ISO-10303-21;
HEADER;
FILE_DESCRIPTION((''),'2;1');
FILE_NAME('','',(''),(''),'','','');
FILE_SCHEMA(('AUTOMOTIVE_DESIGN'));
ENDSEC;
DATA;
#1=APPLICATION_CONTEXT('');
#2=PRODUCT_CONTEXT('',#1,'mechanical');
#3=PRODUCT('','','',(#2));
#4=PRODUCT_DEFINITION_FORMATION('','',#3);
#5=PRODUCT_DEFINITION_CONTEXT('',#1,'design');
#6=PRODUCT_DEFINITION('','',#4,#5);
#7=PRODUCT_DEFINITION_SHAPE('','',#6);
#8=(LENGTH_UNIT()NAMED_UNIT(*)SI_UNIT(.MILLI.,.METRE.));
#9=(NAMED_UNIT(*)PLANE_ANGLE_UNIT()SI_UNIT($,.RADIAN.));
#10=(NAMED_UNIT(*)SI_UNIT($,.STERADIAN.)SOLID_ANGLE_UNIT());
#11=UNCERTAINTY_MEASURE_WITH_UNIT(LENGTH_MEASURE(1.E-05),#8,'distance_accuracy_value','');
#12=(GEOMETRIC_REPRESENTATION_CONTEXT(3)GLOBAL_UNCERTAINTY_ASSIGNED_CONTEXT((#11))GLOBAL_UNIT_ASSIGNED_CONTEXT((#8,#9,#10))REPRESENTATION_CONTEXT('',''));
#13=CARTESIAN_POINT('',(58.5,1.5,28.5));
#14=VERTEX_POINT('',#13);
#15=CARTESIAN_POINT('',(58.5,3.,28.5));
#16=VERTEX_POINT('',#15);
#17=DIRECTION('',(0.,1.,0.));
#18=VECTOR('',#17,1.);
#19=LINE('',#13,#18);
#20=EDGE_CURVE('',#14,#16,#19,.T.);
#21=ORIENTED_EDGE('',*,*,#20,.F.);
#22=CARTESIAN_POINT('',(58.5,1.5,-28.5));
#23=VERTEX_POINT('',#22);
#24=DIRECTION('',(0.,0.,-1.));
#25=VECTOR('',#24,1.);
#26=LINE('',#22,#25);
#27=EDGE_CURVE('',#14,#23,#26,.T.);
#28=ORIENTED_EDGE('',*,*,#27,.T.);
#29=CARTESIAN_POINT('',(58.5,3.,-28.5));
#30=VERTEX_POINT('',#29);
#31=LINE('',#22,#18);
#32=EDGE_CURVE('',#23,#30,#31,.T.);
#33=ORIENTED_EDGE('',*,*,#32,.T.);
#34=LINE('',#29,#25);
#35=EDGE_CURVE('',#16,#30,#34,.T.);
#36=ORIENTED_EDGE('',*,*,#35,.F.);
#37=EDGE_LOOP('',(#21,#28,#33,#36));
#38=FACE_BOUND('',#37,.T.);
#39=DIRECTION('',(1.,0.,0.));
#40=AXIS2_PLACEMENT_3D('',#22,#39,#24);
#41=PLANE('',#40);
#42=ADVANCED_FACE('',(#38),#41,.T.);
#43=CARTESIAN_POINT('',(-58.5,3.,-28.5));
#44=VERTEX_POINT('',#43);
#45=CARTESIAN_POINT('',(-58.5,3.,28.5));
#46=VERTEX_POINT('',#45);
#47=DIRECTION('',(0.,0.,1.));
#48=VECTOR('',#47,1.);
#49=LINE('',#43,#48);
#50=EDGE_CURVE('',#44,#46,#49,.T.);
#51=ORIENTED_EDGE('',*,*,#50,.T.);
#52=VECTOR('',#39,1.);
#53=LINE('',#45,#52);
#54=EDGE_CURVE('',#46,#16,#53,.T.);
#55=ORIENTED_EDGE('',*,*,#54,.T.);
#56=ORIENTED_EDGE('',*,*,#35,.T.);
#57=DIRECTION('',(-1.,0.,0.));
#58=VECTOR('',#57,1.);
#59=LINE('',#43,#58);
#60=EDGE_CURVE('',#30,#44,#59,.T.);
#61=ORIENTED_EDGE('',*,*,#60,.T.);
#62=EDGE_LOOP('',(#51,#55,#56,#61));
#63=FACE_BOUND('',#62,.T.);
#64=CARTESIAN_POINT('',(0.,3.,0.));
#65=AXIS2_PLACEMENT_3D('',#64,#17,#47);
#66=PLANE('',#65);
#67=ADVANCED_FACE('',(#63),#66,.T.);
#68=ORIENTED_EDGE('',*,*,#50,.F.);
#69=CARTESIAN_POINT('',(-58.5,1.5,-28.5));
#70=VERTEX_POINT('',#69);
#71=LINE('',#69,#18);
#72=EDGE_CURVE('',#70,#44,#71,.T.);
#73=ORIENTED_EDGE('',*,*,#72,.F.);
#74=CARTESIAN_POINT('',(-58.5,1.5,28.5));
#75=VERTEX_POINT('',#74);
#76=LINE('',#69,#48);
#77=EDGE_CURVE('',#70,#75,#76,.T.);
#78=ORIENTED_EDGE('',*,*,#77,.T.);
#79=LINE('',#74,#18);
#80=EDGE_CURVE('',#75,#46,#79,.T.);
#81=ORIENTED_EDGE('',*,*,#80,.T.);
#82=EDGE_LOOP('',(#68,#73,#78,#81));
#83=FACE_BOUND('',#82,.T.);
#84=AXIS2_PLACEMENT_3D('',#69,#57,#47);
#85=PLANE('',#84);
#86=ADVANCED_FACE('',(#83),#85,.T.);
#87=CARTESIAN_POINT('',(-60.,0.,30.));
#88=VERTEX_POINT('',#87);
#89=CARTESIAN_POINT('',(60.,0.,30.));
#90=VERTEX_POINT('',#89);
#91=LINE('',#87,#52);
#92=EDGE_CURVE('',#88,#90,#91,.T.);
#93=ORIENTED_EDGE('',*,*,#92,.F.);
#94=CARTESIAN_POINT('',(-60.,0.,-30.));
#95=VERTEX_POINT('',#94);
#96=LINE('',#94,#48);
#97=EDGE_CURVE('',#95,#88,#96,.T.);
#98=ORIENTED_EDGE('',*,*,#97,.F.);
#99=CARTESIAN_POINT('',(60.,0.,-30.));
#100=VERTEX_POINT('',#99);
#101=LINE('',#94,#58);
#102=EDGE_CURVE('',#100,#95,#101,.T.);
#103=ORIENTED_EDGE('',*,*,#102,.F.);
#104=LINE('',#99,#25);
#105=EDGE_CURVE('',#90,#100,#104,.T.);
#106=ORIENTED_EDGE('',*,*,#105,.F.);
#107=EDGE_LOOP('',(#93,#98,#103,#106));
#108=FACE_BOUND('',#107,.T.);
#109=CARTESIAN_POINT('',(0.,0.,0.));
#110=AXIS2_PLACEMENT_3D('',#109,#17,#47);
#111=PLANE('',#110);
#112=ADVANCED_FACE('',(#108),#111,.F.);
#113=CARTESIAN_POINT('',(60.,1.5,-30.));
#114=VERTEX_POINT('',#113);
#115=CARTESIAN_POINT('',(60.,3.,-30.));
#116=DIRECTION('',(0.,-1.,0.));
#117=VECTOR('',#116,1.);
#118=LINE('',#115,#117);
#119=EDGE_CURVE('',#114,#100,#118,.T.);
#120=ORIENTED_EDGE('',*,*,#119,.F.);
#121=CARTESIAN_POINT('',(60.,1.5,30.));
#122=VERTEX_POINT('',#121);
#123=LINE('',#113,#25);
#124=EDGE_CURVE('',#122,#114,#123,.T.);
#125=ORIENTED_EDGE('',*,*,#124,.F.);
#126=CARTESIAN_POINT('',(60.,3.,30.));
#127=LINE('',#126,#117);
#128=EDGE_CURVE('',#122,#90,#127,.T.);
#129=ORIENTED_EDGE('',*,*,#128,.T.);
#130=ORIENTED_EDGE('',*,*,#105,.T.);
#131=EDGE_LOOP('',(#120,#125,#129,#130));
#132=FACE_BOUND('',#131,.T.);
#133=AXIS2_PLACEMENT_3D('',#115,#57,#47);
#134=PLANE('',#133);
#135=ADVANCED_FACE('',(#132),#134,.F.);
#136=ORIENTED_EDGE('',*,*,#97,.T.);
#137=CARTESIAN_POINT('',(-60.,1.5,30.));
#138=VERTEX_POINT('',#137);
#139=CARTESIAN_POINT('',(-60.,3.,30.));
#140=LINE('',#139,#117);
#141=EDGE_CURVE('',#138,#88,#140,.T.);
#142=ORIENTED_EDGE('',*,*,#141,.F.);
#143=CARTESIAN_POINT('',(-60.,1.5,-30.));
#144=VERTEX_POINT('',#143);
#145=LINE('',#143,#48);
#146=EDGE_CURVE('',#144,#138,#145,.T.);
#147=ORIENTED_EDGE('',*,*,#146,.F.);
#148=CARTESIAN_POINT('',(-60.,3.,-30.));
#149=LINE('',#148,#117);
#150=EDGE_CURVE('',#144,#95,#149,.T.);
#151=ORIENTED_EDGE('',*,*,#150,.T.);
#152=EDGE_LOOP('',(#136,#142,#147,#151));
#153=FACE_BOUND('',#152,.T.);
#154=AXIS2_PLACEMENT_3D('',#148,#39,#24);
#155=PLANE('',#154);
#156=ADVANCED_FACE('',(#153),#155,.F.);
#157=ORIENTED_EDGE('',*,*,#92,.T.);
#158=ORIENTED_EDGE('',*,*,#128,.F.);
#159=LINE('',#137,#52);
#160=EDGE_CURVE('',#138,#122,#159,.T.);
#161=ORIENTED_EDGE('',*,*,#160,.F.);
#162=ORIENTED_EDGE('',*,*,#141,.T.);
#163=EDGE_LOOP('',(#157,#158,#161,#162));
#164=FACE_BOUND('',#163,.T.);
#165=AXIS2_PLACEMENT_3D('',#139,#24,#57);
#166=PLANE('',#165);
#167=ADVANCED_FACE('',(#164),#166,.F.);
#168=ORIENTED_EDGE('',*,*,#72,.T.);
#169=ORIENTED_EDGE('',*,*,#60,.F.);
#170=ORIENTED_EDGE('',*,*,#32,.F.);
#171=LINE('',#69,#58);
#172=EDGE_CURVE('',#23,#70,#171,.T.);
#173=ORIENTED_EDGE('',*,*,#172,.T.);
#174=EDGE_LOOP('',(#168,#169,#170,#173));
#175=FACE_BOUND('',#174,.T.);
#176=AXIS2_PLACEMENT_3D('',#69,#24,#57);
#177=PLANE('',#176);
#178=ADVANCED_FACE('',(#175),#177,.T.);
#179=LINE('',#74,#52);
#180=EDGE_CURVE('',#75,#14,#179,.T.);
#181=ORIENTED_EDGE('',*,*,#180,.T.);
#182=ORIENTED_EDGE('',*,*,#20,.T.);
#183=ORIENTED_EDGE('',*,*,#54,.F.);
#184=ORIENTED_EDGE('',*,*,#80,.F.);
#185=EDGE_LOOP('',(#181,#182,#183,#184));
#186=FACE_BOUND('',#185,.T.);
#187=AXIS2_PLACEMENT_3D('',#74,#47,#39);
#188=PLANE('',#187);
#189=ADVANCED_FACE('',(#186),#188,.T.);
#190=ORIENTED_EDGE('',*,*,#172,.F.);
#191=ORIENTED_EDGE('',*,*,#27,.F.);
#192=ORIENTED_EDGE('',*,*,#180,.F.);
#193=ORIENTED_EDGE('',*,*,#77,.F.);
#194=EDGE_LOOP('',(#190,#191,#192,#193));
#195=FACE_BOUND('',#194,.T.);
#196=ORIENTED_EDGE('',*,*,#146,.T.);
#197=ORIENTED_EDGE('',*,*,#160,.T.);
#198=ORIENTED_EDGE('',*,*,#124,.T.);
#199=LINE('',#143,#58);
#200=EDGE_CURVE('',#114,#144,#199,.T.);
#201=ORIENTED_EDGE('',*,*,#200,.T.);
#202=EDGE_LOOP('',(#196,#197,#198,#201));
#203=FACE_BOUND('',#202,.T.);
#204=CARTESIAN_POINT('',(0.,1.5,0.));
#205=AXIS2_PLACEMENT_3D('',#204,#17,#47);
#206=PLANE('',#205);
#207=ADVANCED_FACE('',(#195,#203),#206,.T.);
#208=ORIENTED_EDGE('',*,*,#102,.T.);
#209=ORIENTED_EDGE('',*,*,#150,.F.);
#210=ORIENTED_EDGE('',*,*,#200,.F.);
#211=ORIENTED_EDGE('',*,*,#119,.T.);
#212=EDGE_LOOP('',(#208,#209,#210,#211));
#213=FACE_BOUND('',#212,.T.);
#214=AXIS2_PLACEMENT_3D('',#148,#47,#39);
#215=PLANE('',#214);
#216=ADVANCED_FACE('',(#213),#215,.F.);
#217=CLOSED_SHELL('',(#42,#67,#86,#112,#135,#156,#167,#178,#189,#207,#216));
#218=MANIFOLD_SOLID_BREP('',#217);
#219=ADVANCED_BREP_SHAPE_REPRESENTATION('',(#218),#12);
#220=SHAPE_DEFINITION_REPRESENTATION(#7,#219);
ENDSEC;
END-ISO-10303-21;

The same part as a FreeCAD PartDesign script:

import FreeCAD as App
import Part
import Sketcher
from FreeCAD import Vector

doc = App.newDocument("Part")
body = doc.addObject("PartDesign::Body", "Body")

# Sketch on XZ plane
sketch1 = body.newObject("Sketcher::SketchObject", "Sketch")
sketch1.AttachmentSupport = (doc.getObject("XZ_Plane"), [""])
sketch1.MapMode = "FlatFace"
sketch1.addGeometry([
    Part.LineSegment(Vector(-60, -30, 0), Vector(-60, 30, 0)),
    Part.LineSegment(Vector(-60, 30, 0), Vector(60, 30, 0)),
    Part.LineSegment(Vector(60, 30, 0), Vector(60, -30, 0)),
    Part.LineSegment(Vector(60, -30, 0), Vector(-60, -30, 0)),
], False)
sketch1.addConstraint([
    Sketcher.Constraint("Coincident", 0, 2, 1, 1),
    Sketcher.Constraint("Coincident", 1, 2, 2, 1),
    Sketcher.Constraint("Coincident", 2, 2, 3, 1),
    Sketcher.Constraint("Coincident", 3, 2, 0, 1),
    Sketcher.Constraint("Vertical", 0),
    Sketcher.Constraint("Horizontal", 1),
    Sketcher.Constraint("Vertical", 2),
    Sketcher.Constraint("Horizontal", 3),
    Sketcher.Constraint("Symmetric", 0, 2, 2, 2, -1, 1),
    Sketcher.Constraint("DistanceX", 1, 1, 1, 2, 120.0),
    Sketcher.Constraint("DistanceY", 0, 1, 0, 2, 60.0),
])
pad1 = body.newObject("PartDesign::Pad", "Pad")
pad1.Profile = sketch1
pad1.Length = 3
pad1.Reversed = True

# Sketch on XZ plane
sketch2 = body.newObject("Sketcher::SketchObject", "Sketch001")
sketch2.AttachmentSupport = (doc.getObject("XZ_Plane"), [""])
sketch2.MapMode = "FlatFace"
sketch2.AttachmentOffset = App.Placement(Vector(0, 0, -3), App.Rotation())
sketch2.addGeometry([
    Part.LineSegment(Vector(-74, -44, 0), Vector(-74, 44, 0)),  # 0
    Part.LineSegment(Vector(-74, 44, 0), Vector(74, 44, 0)),  # 1
    Part.LineSegment(Vector(74, 44, 0), Vector(74, -44, 0)),  # 2
    Part.LineSegment(Vector(74, -44, 0), Vector(-74, -44, 0)),  # 3
    Part.LineSegment(Vector(58, 28, 0), Vector(-58, 28, 0)),  # 4
    Part.LineSegment(Vector(-58, 28, 0), Vector(-58, -28, 0)),  # 5
    Part.LineSegment(Vector(-58, -28, 0), Vector(58, -28, 0)),  # 6
    Part.LineSegment(Vector(58, -28, 0), Vector(58, 28, 0)),  # 7
], False)
sketch2.addConstraint([
    Sketcher.Constraint("Coincident", 0, 2, 1, 1),
    Sketcher.Constraint("Coincident", 1, 2, 2, 1),
    Sketcher.Constraint("Coincident", 2, 2, 3, 1),
    Sketcher.Constraint("Coincident", 3, 2, 0, 1),
    Sketcher.Constraint("Coincident", 4, 2, 5, 1),
    Sketcher.Constraint("Coincident", 5, 2, 6, 1),
    Sketcher.Constraint("Coincident", 6, 2, 7, 1),
    Sketcher.Constraint("Coincident", 7, 2, 4, 1),
    Sketcher.Constraint("Vertical", 0),
    Sketcher.Constraint("Horizontal", 1),
    Sketcher.Constraint("Vertical", 2),
    Sketcher.Constraint("Horizontal", 3),
    Sketcher.Constraint("Horizontal", 4),
    Sketcher.Constraint("Vertical", 5),
    Sketcher.Constraint("Horizontal", 6),
    Sketcher.Constraint("Vertical", 7),
    Sketcher.Constraint("Symmetric", 0, 2, 2, 2, -1, 1),
    Sketcher.Constraint("Symmetric", 4, 2, 6, 2, -1, 1),
    Sketcher.Constraint("DistanceX", 4, 2, 4, 1, 117.0),
    Sketcher.Constraint("DistanceY", 5, 2, 5, 1, 57.0),
    Sketcher.Constraint("DistanceX", 1, 1, 1, 2, 148.84),
    Sketcher.Constraint("DistanceY", 0, 1, 0, 2, 88.84),
])
pocket1 = body.newObject("PartDesign::Pocket", "Pocket")
pocket1.Profile = sketch2
pocket1.Length = 1.5
pocket1.Reversed = True

doc.recompute()
